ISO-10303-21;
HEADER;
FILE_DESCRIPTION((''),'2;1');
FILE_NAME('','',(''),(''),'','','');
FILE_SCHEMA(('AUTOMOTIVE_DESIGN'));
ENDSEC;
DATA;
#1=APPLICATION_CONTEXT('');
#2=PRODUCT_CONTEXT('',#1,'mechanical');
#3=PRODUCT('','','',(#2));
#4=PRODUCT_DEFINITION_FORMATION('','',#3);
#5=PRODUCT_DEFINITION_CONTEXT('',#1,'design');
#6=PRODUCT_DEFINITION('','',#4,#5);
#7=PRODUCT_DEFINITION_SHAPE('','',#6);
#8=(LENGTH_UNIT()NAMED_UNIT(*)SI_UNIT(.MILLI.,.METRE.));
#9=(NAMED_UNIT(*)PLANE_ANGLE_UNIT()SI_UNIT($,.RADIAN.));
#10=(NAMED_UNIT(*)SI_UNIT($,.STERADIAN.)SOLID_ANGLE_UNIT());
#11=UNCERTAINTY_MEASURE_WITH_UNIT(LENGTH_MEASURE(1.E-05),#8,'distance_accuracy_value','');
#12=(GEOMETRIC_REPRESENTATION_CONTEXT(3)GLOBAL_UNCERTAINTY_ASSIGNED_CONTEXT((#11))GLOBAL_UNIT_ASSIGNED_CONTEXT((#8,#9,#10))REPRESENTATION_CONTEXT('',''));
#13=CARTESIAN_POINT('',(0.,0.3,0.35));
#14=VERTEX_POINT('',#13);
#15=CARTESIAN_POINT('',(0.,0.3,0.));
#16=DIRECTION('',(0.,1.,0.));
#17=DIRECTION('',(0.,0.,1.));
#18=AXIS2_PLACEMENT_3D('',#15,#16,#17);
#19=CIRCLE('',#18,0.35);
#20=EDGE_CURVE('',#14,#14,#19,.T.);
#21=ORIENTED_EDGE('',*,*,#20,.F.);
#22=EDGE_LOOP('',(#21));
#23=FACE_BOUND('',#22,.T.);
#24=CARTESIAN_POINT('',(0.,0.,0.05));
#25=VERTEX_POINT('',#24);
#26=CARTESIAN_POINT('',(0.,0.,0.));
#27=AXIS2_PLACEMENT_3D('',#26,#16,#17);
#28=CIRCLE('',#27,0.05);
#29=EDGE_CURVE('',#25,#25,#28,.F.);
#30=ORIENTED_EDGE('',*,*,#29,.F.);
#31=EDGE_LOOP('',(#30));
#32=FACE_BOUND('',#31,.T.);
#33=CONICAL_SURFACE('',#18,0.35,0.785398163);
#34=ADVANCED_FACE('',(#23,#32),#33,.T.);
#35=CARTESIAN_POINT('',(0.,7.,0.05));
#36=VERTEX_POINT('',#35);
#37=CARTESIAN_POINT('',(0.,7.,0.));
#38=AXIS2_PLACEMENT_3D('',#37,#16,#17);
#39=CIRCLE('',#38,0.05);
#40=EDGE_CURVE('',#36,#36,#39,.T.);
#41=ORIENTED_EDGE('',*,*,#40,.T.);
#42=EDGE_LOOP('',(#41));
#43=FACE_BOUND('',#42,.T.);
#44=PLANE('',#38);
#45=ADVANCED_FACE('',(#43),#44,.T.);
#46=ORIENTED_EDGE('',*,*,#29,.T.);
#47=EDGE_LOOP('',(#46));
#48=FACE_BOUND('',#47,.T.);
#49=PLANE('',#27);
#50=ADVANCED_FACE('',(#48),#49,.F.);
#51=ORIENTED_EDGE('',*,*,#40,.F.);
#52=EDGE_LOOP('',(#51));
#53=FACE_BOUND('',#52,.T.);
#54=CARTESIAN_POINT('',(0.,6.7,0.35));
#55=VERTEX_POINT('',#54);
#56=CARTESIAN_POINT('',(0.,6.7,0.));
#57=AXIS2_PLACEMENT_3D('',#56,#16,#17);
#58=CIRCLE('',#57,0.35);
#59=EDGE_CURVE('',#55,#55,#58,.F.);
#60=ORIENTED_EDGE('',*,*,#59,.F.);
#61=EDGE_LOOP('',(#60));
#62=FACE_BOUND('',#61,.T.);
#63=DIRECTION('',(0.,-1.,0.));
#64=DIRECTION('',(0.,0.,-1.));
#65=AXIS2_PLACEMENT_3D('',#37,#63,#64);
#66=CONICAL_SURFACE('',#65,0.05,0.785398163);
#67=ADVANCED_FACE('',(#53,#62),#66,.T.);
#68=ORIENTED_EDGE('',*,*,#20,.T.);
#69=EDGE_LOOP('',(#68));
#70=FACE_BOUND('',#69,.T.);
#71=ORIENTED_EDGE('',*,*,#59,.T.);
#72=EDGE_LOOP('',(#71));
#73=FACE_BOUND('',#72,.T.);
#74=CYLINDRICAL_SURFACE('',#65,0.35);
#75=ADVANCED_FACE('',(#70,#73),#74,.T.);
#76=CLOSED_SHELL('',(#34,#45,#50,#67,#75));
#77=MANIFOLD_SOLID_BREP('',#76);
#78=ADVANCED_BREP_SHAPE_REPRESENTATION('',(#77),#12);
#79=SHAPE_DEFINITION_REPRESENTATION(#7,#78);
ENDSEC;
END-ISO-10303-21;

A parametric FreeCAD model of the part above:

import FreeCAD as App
import Part
import Sketcher
from FreeCAD import Vector


def edges_at(feature, points):
    """Names of the edges that pass closest to the given points."""
    edges = feature.Shape.Edges
    near = lambda p: min(range(len(edges)), key=lambda i: edges[i].distToShape(Part.Vertex(*p))[0])
    return sorted({f"Edge{near(p) + 1}" for p in points})

doc = App.newDocument("Part")
body = doc.addObject("PartDesign::Body", "Body")

sketch1 = body.newObject("Sketcher::SketchObject", "Sketch")
sketch1.AttachmentSupport = (doc.getObject("XZ_Plane"), [""])
sketch1.MapMode = "FlatFace"
sketch1.addGeometry(Part.Circle(Vector(0, 0, 0), Vector(0, 0, 1), 0.35), False)
sketch1.addConstraint(Sketcher.Constraint("Coincident", 0, 3, -1, 1))
sketch1.addConstraint(Sketcher.Constraint("Diameter", 0, 0.7))
pad1 = body.newObject("PartDesign::Pad", "Pad")
pad1.Profile = sketch1
pad1.Length = 7
pad1.Reversed = True
doc.recompute()

chamfer = body.newObject("PartDesign::Chamfer", "Chamfer")
chamfer.Base = (pad1, edges_at(pad1, [(-0.35, 0, 0), (-0.35, 7, 0)]))
chamfer.Size = 0.3

doc.recompute()
